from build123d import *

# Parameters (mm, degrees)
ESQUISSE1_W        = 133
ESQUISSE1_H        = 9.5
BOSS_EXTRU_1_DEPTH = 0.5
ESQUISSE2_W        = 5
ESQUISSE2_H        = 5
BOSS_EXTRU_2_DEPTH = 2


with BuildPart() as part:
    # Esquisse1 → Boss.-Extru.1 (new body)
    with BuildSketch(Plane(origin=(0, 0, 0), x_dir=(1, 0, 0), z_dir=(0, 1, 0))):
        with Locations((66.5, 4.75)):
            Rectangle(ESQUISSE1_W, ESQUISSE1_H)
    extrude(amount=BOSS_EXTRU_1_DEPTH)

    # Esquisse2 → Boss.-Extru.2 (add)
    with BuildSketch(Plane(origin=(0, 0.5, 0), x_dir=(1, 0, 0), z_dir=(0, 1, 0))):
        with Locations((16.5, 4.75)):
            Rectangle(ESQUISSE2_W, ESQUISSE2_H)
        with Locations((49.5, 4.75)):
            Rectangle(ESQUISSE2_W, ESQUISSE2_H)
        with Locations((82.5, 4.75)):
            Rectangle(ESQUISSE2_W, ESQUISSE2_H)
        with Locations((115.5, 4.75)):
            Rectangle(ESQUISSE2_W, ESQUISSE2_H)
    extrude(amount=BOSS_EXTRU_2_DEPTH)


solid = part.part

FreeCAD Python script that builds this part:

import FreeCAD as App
import Part
import Sketcher
Q = App.Units.Quantity


def add_polygon(sketch, points):
    """Adds a closed chain of lines whose ends are joined by coincident constraints."""
    first, n = sketch.GeometryCount, len(points)
    for a, b in zip(points, points[1:] + points[:1]):
        sketch.addGeometry(Part.LineSegment(App.Vector(*a, 0), App.Vector(*b, 0)), False)
    for i in range(n):
        sketch.addConstraint(Sketcher.Constraint("Coincident", first + i, 2, first + (i + 1) % n, 1))

doc = App.newDocument("Part")
params = doc.addObject("Spreadsheet::Sheet", "Params")
for row, (alias, value) in enumerate([
    ("sketch1_width", "133 mm"),
    ("sketch1_height", "9.5 mm"),
    ("pad1_length", "0.5 mm"),
    ("sketch2_width", "5 mm"),
    ("pad2_length", "2 mm"),
], start=1):
    params.set(f"A{row}", alias)
    params.set(f"B{row}", "=" + value)
    params.setAlias(f"B{row}", alias)

body = doc.addObject("PartDesign::Body", "Body")

sketch1 = doc.addObject("Sketcher::SketchObject", "Sketch")
body.addObject(sketch1)
sketch1.AttachmentSupport = (doc.XZ_Plane, [""])
sketch1.MapMode = "FlatFace"
add_polygon(sketch1, [(0, -10), (0, 0), (133, 0), (133, -10)])
sketch1.addConstraint([
    Sketcher.Constraint("Vertical", 0),
    Sketcher.Constraint("Horizontal", 1),
    Sketcher.Constraint("Vertical", 2),
    Sketcher.Constraint("Horizontal", 3),
    Sketcher.Constraint("Coincident", 0, 2, -1, 1),
    Sketcher.Constraint("DistanceX", 1, 1, 1, 2, Q("133 mm")),
    Sketcher.Constraint("DistanceY", 0, 1, 0, 2, Q("9.5 mm")),
])
sketch1.setExpression("Constraints[9]", "Params.sketch1_width")
sketch1.setExpression("Constraints[10]", "Params.sketch1_height")
pad1 = doc.addObject("PartDesign::Pad", "Pad")
body.addObject(pad1)
pad1.Profile = sketch1
pad1.setExpression("Length", "Params.pad1_length")
pad1.Reversed = True

sketch2 = doc.addObject("Sketcher::SketchObject", "Sketch001")
body.addObject(sketch2)
sketch2.AttachmentSupport = (doc.XZ_Plane, [""])
sketch2.MapMode = "FlatFace"
sketch2.AttachmentOffset = App.Placement(App.Vector(0, 0, -0.5), App.Rotation())
add_polygon(sketch2, [(14, -7), (14, -2), (19, -2), (19, -7)])
add_polygon(sketch2, [(47, -7), (47, -2), (52, -2), (52, -7)])
add_polygon(sketch2, [(80, -7), (80, -2), (85, -2), (85, -7)])
add_polygon(sketch2, [(113, -7), (113, -2), (118, -2), (118, -7)])
sketch2.addConstraint([
    Sketcher.Constraint("Vertical", 0),
    Sketcher.Constraint("Horizontal", 1),
    Sketcher.Constraint("Vertical", 2),
    Sketcher.Constraint("Horizontal", 3),
    Sketcher.Constraint("Vertical", 4),
    Sketcher.Constraint("Horizontal", 5),
    Sketcher.Constraint("Vertical", 6),
    Sketcher.Constraint("Horizontal", 7),
    Sketcher.Constraint("Vertical", 8),
    Sketcher.Constraint("Horizontal", 9),
    Sketcher.Constraint("Vertical", 10),
    Sketcher.Constraint("Horizontal", 11),
    Sketcher.Constraint("Vertical", 12),
    Sketcher.Constraint("Horizontal", 13),
    Sketcher.Constraint("Vertical", 14),
    Sketcher.Constraint("Horizontal", 15),
    Sketcher.Constraint("Horizontal", 1, 2, 4, 2),
    Sketcher.Constraint("Horizontal", 3, 2, 6, 2),
    Sketcher.Constraint("Horizontal", 5, 2, 8, 2),
    Sketcher.Constraint("Horizontal", 7, 2, 10, 2),
    Sketcher.Constraint("Horizontal", 9, 2, 12, 2),
    Sketcher.Constraint("Horizontal", 11, 2, 14, 2),
    Sketcher.Constraint("Equal", 3, 5),
    Sketcher.Constraint("Equal", 7, 9),
    Sketcher.Constraint("Equal", 11, 13),
    Sketcher.Constraint("Equal", 15, 0),
    Sketcher.Constraint("DistanceX", 1, 1, 1, 2, Q("5 mm")),
    Sketcher.Constraint("DistanceX", -1, 1, 0, 2, Q("14 mm")),
    Sketcher.Constraint("DistanceX", -1, 1, 4, 2, Q("47 mm")),
    Sketcher.Constraint("DistanceX", -1, 1, 8, 2, Q("80 mm")),
    Sketcher.Constraint("DistanceX", -1, 1, 12, 2, Q("113 mm")),
    Sketcher.Constraint("DistanceY", 0, 2, -1, 1, Q("2.25 mm")),
])
sketch2.setExpression("Constraints[42]", "Params.sketch2_width")
pad2 = doc.addObject("PartDesign::Pad", "Pad001")
body.addObject(pad2)
pad2.Profile = sketch2
pad2.setExpression("Length", "Params.pad2_length")
pad2.Reversed = True

doc.recompute()
